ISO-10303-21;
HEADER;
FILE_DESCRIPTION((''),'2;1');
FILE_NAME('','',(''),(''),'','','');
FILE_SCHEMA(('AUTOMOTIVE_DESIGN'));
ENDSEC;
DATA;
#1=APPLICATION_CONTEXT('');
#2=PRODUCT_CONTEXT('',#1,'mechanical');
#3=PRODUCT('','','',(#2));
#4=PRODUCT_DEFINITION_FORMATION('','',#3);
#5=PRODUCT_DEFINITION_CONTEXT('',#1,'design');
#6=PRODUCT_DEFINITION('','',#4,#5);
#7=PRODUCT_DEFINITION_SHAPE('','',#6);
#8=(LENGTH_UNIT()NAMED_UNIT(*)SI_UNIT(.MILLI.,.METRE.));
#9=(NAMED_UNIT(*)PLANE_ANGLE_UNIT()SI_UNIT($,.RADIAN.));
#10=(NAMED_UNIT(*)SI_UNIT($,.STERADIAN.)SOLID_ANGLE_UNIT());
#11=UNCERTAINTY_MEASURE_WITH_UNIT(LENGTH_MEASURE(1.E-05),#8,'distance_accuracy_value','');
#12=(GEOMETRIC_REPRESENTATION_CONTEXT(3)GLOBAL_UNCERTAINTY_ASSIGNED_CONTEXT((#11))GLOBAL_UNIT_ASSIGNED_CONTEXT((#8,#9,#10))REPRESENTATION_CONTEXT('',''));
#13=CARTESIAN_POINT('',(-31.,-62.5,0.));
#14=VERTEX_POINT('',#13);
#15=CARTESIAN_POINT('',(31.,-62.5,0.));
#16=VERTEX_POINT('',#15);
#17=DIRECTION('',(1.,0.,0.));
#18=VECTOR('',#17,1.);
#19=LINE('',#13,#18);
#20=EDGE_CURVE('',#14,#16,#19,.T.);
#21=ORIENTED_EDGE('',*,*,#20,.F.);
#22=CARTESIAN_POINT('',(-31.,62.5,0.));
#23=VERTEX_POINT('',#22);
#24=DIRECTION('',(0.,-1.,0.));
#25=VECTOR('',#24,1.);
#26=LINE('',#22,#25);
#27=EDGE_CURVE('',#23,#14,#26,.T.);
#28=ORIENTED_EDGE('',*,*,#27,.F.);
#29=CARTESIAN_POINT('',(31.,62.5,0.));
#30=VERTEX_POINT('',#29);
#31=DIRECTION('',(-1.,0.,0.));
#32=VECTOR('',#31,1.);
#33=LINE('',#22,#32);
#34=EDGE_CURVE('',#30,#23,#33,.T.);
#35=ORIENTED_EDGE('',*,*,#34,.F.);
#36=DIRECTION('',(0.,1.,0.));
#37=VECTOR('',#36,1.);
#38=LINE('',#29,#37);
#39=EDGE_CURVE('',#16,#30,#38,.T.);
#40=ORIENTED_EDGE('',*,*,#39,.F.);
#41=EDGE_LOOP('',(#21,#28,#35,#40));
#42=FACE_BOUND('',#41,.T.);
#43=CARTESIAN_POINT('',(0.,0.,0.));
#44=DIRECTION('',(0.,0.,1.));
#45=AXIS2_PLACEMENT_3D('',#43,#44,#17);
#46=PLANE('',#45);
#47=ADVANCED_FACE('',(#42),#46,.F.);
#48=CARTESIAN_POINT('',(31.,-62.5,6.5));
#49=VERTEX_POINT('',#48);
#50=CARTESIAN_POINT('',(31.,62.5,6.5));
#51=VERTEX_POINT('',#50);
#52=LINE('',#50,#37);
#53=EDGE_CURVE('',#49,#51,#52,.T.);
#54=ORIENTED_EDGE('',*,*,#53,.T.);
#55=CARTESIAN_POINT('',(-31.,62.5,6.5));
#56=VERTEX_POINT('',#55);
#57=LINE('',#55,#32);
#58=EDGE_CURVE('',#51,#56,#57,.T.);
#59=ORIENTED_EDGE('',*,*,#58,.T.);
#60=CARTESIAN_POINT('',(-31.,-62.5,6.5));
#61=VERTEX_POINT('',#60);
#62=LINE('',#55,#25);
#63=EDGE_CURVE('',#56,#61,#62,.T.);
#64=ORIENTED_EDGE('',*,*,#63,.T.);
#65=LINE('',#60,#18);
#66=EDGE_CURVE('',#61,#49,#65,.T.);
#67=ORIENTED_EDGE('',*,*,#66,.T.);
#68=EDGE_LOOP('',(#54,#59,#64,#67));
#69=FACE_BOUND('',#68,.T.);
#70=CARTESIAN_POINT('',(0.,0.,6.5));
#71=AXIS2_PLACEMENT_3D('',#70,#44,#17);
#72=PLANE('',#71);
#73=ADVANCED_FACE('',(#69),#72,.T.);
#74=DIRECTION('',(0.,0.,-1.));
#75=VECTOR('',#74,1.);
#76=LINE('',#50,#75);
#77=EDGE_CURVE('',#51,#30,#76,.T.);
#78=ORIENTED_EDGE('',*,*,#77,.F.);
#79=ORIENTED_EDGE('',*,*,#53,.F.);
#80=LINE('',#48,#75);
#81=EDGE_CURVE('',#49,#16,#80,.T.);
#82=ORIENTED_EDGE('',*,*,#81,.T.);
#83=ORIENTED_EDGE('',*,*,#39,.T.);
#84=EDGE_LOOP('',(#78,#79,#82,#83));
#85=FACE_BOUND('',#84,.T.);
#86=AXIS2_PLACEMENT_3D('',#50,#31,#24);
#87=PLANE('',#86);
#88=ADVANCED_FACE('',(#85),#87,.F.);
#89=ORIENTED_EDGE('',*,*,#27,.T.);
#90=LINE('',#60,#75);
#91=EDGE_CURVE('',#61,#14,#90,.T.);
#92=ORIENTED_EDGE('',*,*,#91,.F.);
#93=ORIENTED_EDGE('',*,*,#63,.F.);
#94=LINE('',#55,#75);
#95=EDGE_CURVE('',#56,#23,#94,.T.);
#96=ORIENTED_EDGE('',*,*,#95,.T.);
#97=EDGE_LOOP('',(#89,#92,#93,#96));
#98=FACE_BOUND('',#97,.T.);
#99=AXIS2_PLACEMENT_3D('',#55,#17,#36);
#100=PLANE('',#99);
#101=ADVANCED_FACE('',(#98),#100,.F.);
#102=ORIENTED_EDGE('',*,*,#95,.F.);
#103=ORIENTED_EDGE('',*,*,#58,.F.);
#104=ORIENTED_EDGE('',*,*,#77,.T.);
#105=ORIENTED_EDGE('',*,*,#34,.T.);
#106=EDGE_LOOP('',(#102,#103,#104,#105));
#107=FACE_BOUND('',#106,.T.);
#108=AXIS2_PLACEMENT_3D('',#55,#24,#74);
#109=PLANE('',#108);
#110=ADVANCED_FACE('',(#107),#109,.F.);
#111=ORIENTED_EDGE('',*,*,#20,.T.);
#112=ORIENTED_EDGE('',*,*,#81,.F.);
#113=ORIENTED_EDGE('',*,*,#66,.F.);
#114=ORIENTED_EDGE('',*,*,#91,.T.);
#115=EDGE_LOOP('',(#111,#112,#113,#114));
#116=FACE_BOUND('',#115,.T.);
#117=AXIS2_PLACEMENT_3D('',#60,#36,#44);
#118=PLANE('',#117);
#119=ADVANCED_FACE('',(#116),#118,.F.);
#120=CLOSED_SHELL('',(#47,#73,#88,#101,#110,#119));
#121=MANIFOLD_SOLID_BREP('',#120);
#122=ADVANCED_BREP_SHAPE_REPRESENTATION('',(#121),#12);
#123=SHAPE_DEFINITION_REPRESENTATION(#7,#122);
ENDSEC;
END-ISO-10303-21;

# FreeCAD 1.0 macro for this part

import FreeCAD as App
import Part
import Sketcher

V = App.Vector
Q = App.Units.Quantity


def add_polygon(sketch, points):
    """Adds a closed chain of lines whose ends are joined by coincident constraints."""
    first, n = sketch.GeometryCount, len(points)
    for a, b in zip(points, points[1:] + points[:1]):
        sketch.addGeometry(Part.LineSegment(App.Vector(*a, 0), App.Vector(*b, 0)), False)
    for i in range(n):
        sketch.addConstraint(Sketcher.Constraint("Coincident", first + i, 2, first + (i + 1) % n, 1))

doc = App.newDocument("Part")
params = doc.addObject("Spreadsheet::Sheet", "Params")
for row, (alias, value) in enumerate([
    ("sketch1_width", "62 mm"),
    ("sketch1_height", "125 mm"),
    ("pad1_length", "6.5 mm"),
], start=1):
    params.set(f"A{row}", alias)
    params.set(f"B{row}", "=" + value)
    params.setAlias(f"B{row}", alias)

body = doc.addObject("PartDesign::Body", "Body")

# Sketch on XY plane
sketch1 = body.newObject("Sketcher::SketchObject", "Sketch")
sketch1.AttachmentSupport = (doc.getObject("XY_Plane"), [""])
sketch1.MapMode = "FlatFace"
add_polygon(sketch1, [(-31, 62), (-31, -62), (31, -62), (31, 62)])  # lines 0-3
sketch1.addConstraint([
    Sketcher.Constraint("Vertical", 0),
    Sketcher.Constraint("Horizontal", 1),
    Sketcher.Constraint("Vertical", 2),
    Sketcher.Constraint("Horizontal", 3),
    Sketcher.Constraint("Symmetric", 0, 2, 2, 2, -1, 1),
    Sketcher.Constraint("DistanceX", 1, 1, 1, 2, Q("62 mm")),
    Sketcher.Constraint("DistanceY", 0, 2, 0, 1, Q("125 mm")),
])
sketch1.setExpression("Constraints[9]", "Params.sketch1_width")
sketch1.setExpression("Constraints[10]", "Params.sketch1_height")
pad1 = body.newObject("PartDesign::Pad", "Pad")
pad1.Profile = sketch1
pad1.setExpression("Length", "Params.pad1_length")

doc.recompute()
